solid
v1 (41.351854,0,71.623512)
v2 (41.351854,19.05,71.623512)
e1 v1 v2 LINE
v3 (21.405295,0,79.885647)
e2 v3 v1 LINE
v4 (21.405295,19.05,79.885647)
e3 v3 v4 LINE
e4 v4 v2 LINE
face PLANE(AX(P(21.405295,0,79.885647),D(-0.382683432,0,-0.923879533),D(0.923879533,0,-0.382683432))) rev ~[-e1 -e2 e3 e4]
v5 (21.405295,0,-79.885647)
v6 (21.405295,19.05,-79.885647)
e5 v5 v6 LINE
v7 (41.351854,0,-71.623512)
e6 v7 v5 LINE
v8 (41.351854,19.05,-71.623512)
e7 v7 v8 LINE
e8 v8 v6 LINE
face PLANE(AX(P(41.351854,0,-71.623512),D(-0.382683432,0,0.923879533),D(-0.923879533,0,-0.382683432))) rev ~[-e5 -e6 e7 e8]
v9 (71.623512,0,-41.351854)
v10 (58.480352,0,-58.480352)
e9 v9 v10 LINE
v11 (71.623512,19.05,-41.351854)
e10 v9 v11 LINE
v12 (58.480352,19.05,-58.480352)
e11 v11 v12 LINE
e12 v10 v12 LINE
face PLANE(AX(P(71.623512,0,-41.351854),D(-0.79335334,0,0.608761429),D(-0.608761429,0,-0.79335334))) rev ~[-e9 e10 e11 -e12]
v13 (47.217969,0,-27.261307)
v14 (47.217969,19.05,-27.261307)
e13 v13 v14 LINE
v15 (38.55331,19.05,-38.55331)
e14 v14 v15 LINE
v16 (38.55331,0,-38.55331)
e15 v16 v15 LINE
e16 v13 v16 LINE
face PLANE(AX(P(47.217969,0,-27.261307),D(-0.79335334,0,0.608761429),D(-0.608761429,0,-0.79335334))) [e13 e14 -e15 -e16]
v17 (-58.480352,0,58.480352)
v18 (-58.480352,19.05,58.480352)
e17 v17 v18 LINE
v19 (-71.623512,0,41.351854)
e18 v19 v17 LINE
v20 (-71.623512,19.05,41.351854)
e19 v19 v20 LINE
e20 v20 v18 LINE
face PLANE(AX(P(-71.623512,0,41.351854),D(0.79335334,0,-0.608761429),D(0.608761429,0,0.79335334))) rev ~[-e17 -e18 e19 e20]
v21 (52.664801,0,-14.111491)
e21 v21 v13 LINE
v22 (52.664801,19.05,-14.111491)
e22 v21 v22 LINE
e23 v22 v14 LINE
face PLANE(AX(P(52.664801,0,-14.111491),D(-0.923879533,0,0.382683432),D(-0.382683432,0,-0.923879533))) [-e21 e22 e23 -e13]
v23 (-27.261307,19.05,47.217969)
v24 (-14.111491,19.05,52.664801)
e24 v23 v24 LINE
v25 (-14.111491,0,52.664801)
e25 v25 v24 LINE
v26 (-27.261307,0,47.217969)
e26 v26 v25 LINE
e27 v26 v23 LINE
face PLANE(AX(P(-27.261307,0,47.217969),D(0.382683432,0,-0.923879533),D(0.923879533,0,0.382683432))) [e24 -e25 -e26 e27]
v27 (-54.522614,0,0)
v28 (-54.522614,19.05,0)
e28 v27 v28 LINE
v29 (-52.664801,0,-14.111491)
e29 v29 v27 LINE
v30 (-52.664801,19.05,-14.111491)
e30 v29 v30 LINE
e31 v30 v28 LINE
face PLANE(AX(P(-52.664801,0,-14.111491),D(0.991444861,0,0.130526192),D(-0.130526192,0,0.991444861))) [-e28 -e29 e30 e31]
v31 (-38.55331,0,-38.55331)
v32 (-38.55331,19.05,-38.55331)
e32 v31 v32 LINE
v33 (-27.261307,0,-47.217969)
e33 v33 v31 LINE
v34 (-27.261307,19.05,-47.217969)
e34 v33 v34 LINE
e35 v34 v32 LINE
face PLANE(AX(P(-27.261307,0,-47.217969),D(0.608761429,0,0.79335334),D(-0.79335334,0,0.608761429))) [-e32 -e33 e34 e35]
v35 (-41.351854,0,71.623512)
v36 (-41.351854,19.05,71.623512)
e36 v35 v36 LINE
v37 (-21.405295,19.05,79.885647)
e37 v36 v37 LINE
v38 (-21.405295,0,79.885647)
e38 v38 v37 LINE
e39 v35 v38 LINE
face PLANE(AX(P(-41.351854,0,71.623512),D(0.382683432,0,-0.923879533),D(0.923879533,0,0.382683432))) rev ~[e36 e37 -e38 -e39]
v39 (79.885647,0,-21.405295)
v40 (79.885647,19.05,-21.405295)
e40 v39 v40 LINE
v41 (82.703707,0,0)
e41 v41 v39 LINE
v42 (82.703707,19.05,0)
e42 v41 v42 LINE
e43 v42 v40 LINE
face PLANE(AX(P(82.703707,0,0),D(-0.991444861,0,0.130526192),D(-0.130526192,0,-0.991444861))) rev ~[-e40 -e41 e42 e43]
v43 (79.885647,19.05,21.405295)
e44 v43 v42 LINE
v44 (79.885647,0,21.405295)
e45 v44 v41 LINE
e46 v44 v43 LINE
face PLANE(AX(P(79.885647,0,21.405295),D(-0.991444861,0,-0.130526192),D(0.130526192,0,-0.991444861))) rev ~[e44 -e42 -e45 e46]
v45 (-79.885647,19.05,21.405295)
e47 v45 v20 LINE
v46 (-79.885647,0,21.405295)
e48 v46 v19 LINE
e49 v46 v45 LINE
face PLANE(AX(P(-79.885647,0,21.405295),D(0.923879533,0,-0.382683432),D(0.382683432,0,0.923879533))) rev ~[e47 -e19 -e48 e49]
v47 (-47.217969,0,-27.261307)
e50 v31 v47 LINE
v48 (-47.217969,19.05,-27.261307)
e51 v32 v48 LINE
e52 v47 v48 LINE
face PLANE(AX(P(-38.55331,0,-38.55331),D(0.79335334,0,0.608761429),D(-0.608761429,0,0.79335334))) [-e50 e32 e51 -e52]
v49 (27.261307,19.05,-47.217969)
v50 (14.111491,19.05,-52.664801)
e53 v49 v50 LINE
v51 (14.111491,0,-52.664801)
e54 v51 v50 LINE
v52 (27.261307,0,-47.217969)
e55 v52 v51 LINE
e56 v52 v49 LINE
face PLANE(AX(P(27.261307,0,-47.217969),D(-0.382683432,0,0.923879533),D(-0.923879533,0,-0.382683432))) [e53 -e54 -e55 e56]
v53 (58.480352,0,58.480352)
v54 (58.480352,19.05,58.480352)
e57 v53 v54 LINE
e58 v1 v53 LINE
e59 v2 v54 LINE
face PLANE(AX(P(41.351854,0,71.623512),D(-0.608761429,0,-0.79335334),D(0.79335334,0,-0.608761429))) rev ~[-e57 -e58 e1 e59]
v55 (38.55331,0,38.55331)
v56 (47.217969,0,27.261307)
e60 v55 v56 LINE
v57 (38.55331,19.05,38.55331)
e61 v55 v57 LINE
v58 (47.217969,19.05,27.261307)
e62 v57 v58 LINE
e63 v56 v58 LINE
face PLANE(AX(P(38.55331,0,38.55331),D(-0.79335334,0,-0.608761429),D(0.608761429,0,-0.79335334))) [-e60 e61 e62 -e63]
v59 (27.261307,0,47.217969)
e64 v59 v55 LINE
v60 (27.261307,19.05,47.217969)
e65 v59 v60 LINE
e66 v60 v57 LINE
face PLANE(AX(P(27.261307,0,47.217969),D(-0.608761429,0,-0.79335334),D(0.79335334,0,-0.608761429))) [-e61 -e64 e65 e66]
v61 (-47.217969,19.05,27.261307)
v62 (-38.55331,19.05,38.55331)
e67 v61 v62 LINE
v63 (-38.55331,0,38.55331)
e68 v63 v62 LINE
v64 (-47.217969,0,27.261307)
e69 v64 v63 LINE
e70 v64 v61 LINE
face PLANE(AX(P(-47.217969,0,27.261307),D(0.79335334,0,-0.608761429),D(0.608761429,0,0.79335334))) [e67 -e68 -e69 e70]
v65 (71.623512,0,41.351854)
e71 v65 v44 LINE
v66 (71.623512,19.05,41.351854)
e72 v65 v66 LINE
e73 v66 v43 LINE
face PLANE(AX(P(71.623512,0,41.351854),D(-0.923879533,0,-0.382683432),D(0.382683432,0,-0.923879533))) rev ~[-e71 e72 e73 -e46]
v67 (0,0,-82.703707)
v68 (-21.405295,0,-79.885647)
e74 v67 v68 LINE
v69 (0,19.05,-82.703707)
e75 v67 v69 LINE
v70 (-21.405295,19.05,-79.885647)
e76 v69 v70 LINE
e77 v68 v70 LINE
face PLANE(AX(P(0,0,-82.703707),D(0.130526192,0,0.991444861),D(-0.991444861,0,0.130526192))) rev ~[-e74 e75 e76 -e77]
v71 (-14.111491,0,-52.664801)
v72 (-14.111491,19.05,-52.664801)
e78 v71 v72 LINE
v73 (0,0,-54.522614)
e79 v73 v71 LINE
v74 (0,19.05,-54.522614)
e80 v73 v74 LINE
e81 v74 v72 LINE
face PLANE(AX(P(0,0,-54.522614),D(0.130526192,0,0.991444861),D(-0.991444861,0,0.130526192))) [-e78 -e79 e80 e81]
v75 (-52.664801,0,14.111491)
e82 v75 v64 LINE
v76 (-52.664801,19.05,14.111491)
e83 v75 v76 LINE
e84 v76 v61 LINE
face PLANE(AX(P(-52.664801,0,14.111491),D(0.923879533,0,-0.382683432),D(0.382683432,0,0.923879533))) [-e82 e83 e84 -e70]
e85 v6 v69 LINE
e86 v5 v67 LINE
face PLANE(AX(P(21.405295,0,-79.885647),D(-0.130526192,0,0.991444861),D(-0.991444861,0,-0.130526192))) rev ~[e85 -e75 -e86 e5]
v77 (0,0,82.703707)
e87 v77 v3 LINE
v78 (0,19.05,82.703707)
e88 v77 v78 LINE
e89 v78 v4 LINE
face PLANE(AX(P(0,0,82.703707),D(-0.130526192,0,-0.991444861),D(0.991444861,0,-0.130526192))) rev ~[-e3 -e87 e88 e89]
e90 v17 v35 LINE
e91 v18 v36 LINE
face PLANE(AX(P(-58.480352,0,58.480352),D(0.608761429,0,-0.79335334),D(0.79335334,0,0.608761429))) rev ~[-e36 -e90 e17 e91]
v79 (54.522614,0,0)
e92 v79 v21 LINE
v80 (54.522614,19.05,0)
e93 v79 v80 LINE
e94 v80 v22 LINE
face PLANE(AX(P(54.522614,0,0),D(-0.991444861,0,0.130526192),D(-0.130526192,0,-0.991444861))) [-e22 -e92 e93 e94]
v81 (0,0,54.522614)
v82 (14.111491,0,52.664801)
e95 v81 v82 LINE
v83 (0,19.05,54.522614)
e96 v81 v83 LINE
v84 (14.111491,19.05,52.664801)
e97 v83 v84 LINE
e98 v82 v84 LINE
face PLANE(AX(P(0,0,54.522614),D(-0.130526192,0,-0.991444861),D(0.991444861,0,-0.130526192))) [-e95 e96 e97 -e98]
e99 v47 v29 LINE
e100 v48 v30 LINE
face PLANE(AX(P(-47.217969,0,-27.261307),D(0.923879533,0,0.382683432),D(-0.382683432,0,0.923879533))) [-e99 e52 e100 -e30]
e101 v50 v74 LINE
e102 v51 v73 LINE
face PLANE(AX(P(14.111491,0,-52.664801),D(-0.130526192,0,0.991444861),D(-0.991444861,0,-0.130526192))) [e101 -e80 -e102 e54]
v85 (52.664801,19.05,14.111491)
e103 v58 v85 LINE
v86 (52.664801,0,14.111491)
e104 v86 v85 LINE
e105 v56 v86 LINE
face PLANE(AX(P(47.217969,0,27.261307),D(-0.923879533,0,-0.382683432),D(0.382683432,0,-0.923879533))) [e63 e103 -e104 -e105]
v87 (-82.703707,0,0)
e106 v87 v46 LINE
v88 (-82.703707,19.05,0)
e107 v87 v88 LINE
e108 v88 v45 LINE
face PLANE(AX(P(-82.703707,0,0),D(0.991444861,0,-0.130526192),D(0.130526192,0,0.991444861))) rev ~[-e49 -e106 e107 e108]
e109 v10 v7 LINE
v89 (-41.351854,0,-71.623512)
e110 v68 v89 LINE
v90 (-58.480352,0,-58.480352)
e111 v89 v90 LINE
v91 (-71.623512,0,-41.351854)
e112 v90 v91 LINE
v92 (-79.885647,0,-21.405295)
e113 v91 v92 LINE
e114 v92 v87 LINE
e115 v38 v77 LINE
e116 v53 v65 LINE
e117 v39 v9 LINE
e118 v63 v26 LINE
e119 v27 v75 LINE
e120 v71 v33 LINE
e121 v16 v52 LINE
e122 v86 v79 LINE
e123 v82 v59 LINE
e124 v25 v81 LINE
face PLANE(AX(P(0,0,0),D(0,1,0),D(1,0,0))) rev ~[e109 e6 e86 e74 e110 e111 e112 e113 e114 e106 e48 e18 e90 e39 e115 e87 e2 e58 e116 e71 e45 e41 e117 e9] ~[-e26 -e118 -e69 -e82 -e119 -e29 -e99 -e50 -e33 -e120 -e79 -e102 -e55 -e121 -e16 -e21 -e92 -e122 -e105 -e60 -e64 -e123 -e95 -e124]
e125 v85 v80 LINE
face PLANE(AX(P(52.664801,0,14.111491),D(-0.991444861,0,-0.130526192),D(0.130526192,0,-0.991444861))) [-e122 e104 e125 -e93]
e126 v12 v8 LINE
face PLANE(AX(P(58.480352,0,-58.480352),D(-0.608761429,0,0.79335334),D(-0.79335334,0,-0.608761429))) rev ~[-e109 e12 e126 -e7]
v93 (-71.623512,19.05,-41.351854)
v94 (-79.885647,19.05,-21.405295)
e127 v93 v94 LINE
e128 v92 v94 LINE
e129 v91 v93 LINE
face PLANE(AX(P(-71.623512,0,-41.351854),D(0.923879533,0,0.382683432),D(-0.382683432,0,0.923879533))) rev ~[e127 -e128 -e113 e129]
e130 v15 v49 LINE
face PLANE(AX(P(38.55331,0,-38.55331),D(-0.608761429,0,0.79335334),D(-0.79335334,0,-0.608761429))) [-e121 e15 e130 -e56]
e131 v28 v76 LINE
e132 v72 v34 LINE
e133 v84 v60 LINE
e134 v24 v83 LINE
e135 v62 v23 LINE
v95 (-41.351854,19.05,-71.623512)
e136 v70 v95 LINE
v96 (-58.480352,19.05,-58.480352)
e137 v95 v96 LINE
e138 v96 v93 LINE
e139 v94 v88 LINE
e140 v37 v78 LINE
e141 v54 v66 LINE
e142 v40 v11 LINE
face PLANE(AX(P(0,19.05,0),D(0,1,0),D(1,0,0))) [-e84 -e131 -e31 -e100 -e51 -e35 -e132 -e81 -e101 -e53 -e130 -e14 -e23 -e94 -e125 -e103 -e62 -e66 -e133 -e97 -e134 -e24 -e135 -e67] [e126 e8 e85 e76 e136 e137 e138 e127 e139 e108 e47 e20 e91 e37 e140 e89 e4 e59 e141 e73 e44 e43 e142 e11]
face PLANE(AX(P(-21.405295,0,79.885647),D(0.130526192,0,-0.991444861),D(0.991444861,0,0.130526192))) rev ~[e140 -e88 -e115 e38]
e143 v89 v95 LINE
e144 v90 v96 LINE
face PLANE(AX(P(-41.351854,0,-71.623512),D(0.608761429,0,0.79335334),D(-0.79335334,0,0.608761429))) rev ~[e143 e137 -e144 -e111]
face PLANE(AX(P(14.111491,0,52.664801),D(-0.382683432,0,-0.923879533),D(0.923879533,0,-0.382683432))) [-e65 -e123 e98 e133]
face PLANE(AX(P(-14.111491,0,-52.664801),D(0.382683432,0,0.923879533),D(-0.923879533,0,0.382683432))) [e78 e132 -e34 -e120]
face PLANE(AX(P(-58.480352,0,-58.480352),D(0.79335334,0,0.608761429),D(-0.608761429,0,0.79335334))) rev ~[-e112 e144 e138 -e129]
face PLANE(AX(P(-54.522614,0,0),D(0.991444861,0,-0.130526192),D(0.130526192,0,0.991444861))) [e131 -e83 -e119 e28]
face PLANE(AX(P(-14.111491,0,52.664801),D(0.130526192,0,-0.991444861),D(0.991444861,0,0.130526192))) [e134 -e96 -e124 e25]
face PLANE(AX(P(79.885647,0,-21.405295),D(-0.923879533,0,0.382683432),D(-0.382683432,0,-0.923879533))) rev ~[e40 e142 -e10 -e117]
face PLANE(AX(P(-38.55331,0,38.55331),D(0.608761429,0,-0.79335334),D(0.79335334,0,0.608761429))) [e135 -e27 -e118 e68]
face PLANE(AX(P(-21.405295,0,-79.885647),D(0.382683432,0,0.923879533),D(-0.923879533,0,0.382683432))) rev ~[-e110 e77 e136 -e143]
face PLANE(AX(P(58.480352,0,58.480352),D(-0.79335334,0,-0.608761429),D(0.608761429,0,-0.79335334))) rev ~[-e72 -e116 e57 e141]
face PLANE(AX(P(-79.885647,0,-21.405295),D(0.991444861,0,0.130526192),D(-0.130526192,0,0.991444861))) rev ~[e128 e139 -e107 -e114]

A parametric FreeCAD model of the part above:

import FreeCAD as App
import Part
import Sketcher
Q = App.Units.Quantity

doc = App.newDocument("Part")
body = doc.addObject("PartDesign::Body", "Body")

# Sketch on XZ plane
sketch1 = body.newObject("Sketcher::SketchObject", "Sketch")
sketch1.AttachmentSupport = (doc.getObject("XZ_Plane"), [""])
sketch1.MapMode = "FlatFace"
sketch1.addGeometry(Part.LineSegment(App.Vector(-83, 0, 0), App.Vector(-80, 21, 0)), False)
sketch1.addGeometry(Part.LineSegment(App.Vector(-80, 21, 0), App.Vector(-72, 41, 0)), False)
sketch1.addGeometry(Part.LineSegment(App.Vector(-72, 41, 0), App.Vector(-58, 58, 0)), False)
sketch1.addGeometry(Part.LineSegment(App.Vector(-58, 58, 0), App.Vector(-41, 72, 0)), False)
sketch1.addGeometry(Part.LineSegment(App.Vector(-41, 72, 0), App.Vector(-21, 80, 0)), False)
sketch1.addGeometry(Part.LineSegment(App.Vector(-21, 80, 0), App.Vector(0, 83, 0)), False)
sketch1.addGeometry(Part.LineSegment(App.Vector(0, 83, 0), App.Vector(21, 80, 0)), False)
sketch1.addGeometry(Part.LineSegment(App.Vector(21, 80, 0), App.Vector(41, 72, 0)), False)
sketch1.addGeometry(Part.LineSegment(App.Vector(41, 72, 0), App.Vector(58, 58, 0)), False)
sketch1.addGeometry(Part.LineSegment(App.Vector(58, 58, 0), App.Vector(72, 41, 0)), False)
sketch1.addGeometry(Part.LineSegment(App.Vector(72, 41, 0), App.Vector(80, 21, 0)), False)
sketch1.addGeometry(Part.LineSegment(App.Vector(80, 21, 0), App.Vector(83, 0, 0)), False)
sketch1.addGeometry(Part.LineSegment(App.Vector(83, 0, 0), App.Vector(80, -21, 0)), False)
sketch1.addGeometry(Part.LineSegment(App.Vector(80, -21, 0), App.Vector(72, -41, 0)), False)
sketch1.addGeometry(Part.LineSegment(App.Vector(72, -41, 0), App.Vector(58, -58, 0)), False)
sketch1.addGeometry(Part.LineSegment(App.Vector(58, -58, 0), App.Vector(41, -72, 0)), False)
sketch1.addGeometry(Part.LineSegment(App.Vector(41, -72, 0), App.Vector(21, -80, 0)), False)
sketch1.addGeometry(Part.LineSegment(App.Vector(21, -80, 0), App.Vector(0, -83, 0)), False)
sketch1.addGeometry(Part.LineSegment(App.Vector(0, -83, 0), App.Vector(-21, -80, 0)), False)
sketch1.addGeometry(Part.LineSegment(App.Vector(-21, -80, 0), App.Vector(-41, -72, 0)), False)
sketch1.addGeometry(Part.LineSegment(App.Vector(-41, -72, 0), App.Vector(-58, -58, 0)), False)
sketch1.addGeometry(Part.LineSegment(App.Vector(-58, -58, 0), App.Vector(-72, -41, 0)), False)
sketch1.addGeometry(Part.LineSegment(App.Vector(-72, -41, 0), App.Vector(-80, -21, 0)), False)
sketch1.addGeometry(Part.LineSegment(App.Vector(-80, -21, 0), App.Vector(-83, 0, 0)), False)
sketch1.addGeometry(Part.LineSegment(App.Vector(-53, 14, 0), App.Vector(-55, 0, 0)), False)
sketch1.addGeometry(Part.LineSegment(App.Vector(-55, 0, 0), App.Vector(-53, -14, 0)), False)
sketch1.addGeometry(Part.LineSegment(App.Vector(-53, -14, 0), App.Vector(-47, -27, 0)), False)
sketch1.addGeometry(Part.LineSegment(App.Vector(-47, -27, 0), App.Vector(-39, -39, 0)), False)
sketch1.addGeometry(Part.LineSegment(App.Vector(-39, -39, 0), App.Vector(-27, -47, 0)), False)
sketch1.addGeometry(Part.LineSegment(App.Vector(-27, -47, 0), App.Vector(-14, -53, 0)), False)
sketch1.addGeometry(Part.LineSegment(App.Vector(-14, -53, 0), App.Vector(0, -55, 0)), False)
sketch1.addGeometry(Part.LineSegment(App.Vector(0, -55, 0), App.Vector(14, -53, 0)), False)
sketch1.addGeometry(Part.LineSegment(App.Vector(14, -53, 0), App.Vector(27, -47, 0)), False)
sketch1.addGeometry(Part.LineSegment(App.Vector(27, -47, 0), App.Vector(39, -39, 0)), False)
sketch1.addGeometry(Part.LineSegment(App.Vector(39, -39, 0), App.Vector(47, -27, 0)), False)
sketch1.addGeometry(Part.LineSegment(App.Vector(47, -27, 0), App.Vector(53, -14, 0)), False)
sketch1.addGeometry(Part.LineSegment(App.Vector(53, -14, 0), App.Vector(55, 0, 0)), False)
sketch1.addGeometry(Part.LineSegment(App.Vector(55, 0, 0), App.Vector(53, 14, 0)), False)
sketch1.addGeometry(Part.LineSegment(App.Vector(53, 14, 0), App.Vector(47, 27, 0)), False)
sketch1.addGeometry(Part.LineSegment(App.Vector(47, 27, 0), App.Vector(39, 39, 0)), False)
sketch1.addGeometry(Part.LineSegment(App.Vector(39, 39, 0), App.Vector(27, 47, 0)), False)
sketch1.addGeometry(Part.LineSegment(App.Vector(27, 47, 0), App.Vector(14, 53, 0)), False)
sketch1.addGeometry(Part.LineSegment(App.Vector(14, 53, 0), App.Vector(0, 55, 0)), False)
sketch1.addGeometry(Part.LineSegment(App.Vector(0, 55, 0), App.Vector(-14, 53, 0)), False)
sketch1.addGeometry(Part.LineSegment(App.Vector(-14, 53, 0), App.Vector(-27, 47, 0)), False)
sketch1.addGeometry(Part.LineSegment(App.Vector(-27, 47, 0), App.Vector(-39, 39, 0)), False)
sketch1.addGeometry(Part.LineSegment(App.Vector(-39, 39, 0), App.Vector(-47, 27, 0)), False)
sketch1.addGeometry(Part.LineSegment(App.Vector(-47, 27, 0), App.Vector(-53, 14, 0)), False)
sketch1.addConstraint(Sketcher.Constraint("Coincident", 0, 2, 1, 1))
sketch1.addConstraint(Sketcher.Constraint("Coincident", 1, 2, 2, 1))
sketch1.addConstraint(Sketcher.Constraint("Coincident", 2, 2, 3, 1))
sketch1.addConstraint(Sketcher.Constraint("Coincident", 3, 2, 4, 1))
sketch1.addConstraint(Sketcher.Constraint("Coincident", 4, 2, 5, 1))
sketch1.addConstraint(Sketcher.Constraint("Coincident", 5, 2, 6, 1))
sketch1.addConstraint(Sketcher.Constraint("Coincident", 6, 2, 7, 1))
sketch1.addConstraint(Sketcher.Constraint("Coincident", 7, 2, 8, 1))
sketch1.addConstraint(Sketcher.Constraint("Coincident", 8, 2, 9, 1))
sketch1.addConstraint(Sketcher.Constraint("Coincident", 9, 2, 10, 1))
sketch1.addConstraint(Sketcher.Constraint("Coincident", 10, 2, 11, 1))
sketch1.addConstraint(Sketcher.Constraint("Coincident", 11, 2, 12, 1))
sketch1.addConstraint(Sketcher.Constraint("Coincident", 12, 2, 13, 1))
sketch1.addConstraint(Sketcher.Constraint("Coincident", 13, 2, 14, 1))
sketch1.addConstraint(Sketcher.Constraint("Coincident", 14, 2, 15, 1))
sketch1.addConstraint(Sketcher.Constraint("Coincident", 15, 2, 16, 1))
sketch1.addConstraint(Sketcher.Constraint("Coincident", 16, 2, 17, 1))
sketch1.addConstraint(Sketcher.Constraint("Coincident", 17, 2, 18, 1))
sketch1.addConstraint(Sketcher.Constraint("Coincident", 18, 2, 19, 1))
sketch1.addConstraint(Sketcher.Constraint("Coincident", 19, 2, 20, 1))
sketch1.addConstraint(Sketcher.Constraint("Coincident", 20, 2, 21, 1))
sketch1.addConstraint(Sketcher.Constraint("Coincident", 21, 2, 22, 1))
sketch1.addConstraint(Sketcher.Constraint("Coincident", 22, 2, 23, 1))
sketch1.addConstraint(Sketcher.Constraint("Coincident", 23, 2, 0, 1))
sketch1.addConstraint(Sketcher.Constraint("Coincident", 24, 2, 25, 1))
sketch1.addConstraint(Sketcher.Constraint("Coincident", 25, 2, 26, 1))
sketch1.addConstraint(Sketcher.Constraint("Coincident", 26, 2, 27, 1))
sketch1.addConstraint(Sketcher.Constraint("Coincident", 27, 2, 28, 1))
sketch1.addConstraint(Sketcher.Constraint("Coincident", 28, 2, 29, 1))
sketch1.addConstraint(Sketcher.Constraint("Coincident", 29, 2, 30, 1))
sketch1.addConstraint(Sketcher.Constraint("Coincident", 30, 2, 31, 1))
sketch1.addConstraint(Sketcher.Constraint("Coincident", 31, 2, 32, 1))
sketch1.addConstraint(Sketcher.Constraint("Coincident", 32, 2, 33, 1))
sketch1.addConstraint(Sketcher.Constraint("Coincident", 33, 2, 34, 1))
sketch1.addConstraint(Sketcher.Constraint("Coincident", 34, 2, 35, 1))
sketch1.addConstraint(Sketcher.Constraint("Coincident", 35, 2, 36, 1))
sketch1.addConstraint(Sketcher.Constraint("Coincident", 36, 2, 37, 1))
sketch1.addConstraint(Sketcher.Constraint("Coincident", 37, 2, 38, 1))
sketch1.addConstraint(Sketcher.Constraint("Coincident", 38, 2, 39, 1))
sketch1.addConstraint(Sketcher.Constraint("Coincident", 39, 2, 40, 1))
sketch1.addConstraint(Sketcher.Constraint("Coincident", 40, 2, 41, 1))
sketch1.addConstraint(Sketcher.Constraint("Coincident", 41, 2, 42, 1))
sketch1.addConstraint(Sketcher.Constraint("Coincident", 42, 2, 43, 1))
sketch1.addConstraint(Sketcher.Constraint("Coincident", 43, 2, 44, 1))
sketch1.addConstraint(Sketcher.Constraint("Coincident", 44, 2, 45, 1))
sketch1.addConstraint(Sketcher.Constraint("Coincident", 45, 2, 46, 1))
sketch1.addConstraint(Sketcher.Constraint("Coincident", 46, 2, 47, 1))
sketch1.addConstraint(Sketcher.Constraint("Coincident", 47, 2, 24, 1))
sketch1.addConstraint(Sketcher.Constraint("Symmetric", 0, 2, 12, 2, -1, 1))
sketch1.addConstraint(Sketcher.Constraint("Symmetric", 1, 2, 13, 2, -1, 1))
sketch1.addConstraint(Sketcher.Constraint("Symmetric", 2, 2, 14, 2, -1, 1))
sketch1.addConstraint(Sketcher.Constraint("Symmetric", 3, 2, 15, 2, -1, 1))
sketch1.addConstraint(Sketcher.Constraint("Symmetric", 4, 2, 16, 2, -1, 1))
sketch1.addConstraint(Sketcher.Constraint("Symmetric", 5, 2, 17, 2, -1, 1))
sketch1.addConstraint(Sketcher.Constraint("Symmetric", 6, 2, 18, 2, -1, 1))
sketch1.addConstraint(Sketcher.Constraint("Symmetric", 7, 2, 19, 2, -1, 1))
sketch1.addConstraint(Sketcher.Constraint("Symmetric", 8, 2, 20, 2, -1, 1))
sketch1.addConstraint(Sketcher.Constraint("Symmetric", 9, 2, 21, 2, -1, 1))
sketch1.addConstraint(Sketcher.Constraint("Symmetric", 10, 2, 22, 2, -1, 1))
sketch1.addConstraint(Sketcher.Constraint("Symmetric", 11, 2, 23, 2, -1, 1))
sketch1.addConstraint(Sketcher.Constraint("Symmetric", 24, 2, 36, 2, -1, 1))
sketch1.addConstraint(Sketcher.Constraint("Symmetric", 25, 2, 37, 2, -1, 1))
sketch1.addConstraint(Sketcher.Constraint("Symmetric", 26, 2, 38, 2, -1, 1))
sketch1.addConstraint(Sketcher.Constraint("Symmetric", 27, 2, 39, 2, -1, 1))
sketch1.addConstraint(Sketcher.Constraint("Symmetric", 28, 2, 40, 2, -1, 1))
sketch1.addConstraint(Sketcher.Constraint("Symmetric", 29, 2, 41, 2, -1, 1))
sketch1.addConstraint(Sketcher.Constraint("Symmetric", 30, 2, 42, 2, -1, 1))
sketch1.addConstraint(Sketcher.Constraint("Symmetric", 31, 2, 43, 2, -1, 1))
sketch1.addConstraint(Sketcher.Constraint("Symmetric", 32, 2, 44, 2, -1, 1))
sketch1.addConstraint(Sketcher.Constraint("Symmetric", 33, 2, 45, 2, -1, 1))
sketch1.addConstraint(Sketcher.Constraint("Symmetric", 34, 2, 46, 2, -1, 1))
sketch1.addConstraint(Sketcher.Constraint("Symmetric", 35, 2, 47, 2, -1, 1))
sketch1.addConstraint(Sketcher.Constraint("Symmetric", 4, 2, 6, 2, -2))
sketch1.addConstraint(Sketcher.Constraint("Symmetric", 3, 2, 7, 2, -2))
sketch1.addConstraint(Sketcher.Constraint("Symmetric", 2, 2, 8, 2, -2))
sketch1.addConstraint(Sketcher.Constraint("Symmetric", 1, 2, 9, 2, -2))
sketch1.addConstraint(Sketcher.Constraint("Symmetric", 0, 2, 10, 2, -2))
sketch1.addConstraint(Sketcher.Constraint("Symmetric", 29, 2, 31, 2, -2))
sketch1.addConstraint(Sketcher.Constraint("Symmetric", 28, 2, 32, 2, -2))
sketch1.addConstraint(Sketcher.Constraint("Symmetric", 27, 2, 33, 2, -2))
sketch1.addConstraint(Sketcher.Constraint("Symmetric", 26, 2, 34, 2, -2))
sketch1.addConstraint(Sketcher.Constraint("Symmetric", 25, 2, 35, 2, -2))
sketch1.addConstraint(Sketcher.Constraint("PointOnObject", 5, 2, -2))
sketch1.addConstraint(Sketcher.Constraint("PointOnObject", 11, 2, -1))
sketch1.addConstraint(Sketcher.Constraint("PointOnObject", 24, 2, -1))
sketch1.addConstraint(Sketcher.Constraint("PointOnObject", 30, 2, -2))
sketch1.addConstraint(Sketcher.Constraint("Perpendicular", 0, 6))
sketch1.addConstraint(Sketcher.Constraint("Perpendicular", 1, 7))
sketch1.addConstraint(Sketcher.Constraint("Perpendicular", 2, 8))
sketch1.addConstraint(Sketcher.Constraint("Perpendicular", 18, 24))
sketch1.addConstraint(Sketcher.Constraint("Parallel", 22, 26))
sketch1.addConstraint(Sketcher.Constraint("Parallel", 21, 27))
sketch1.addConstraint(Sketcher.Constraint("Parallel", 20, 28))
sketch1.addConstraint(Sketcher.Constraint("Parallel", 19, 29))
sketch1.addConstraint(Sketcher.Constraint("Perpendicular", 24, 30))
sketch1.addConstraint(Sketcher.Constraint("Equal", 0, 1))
sketch1.addConstraint(Sketcher.Constraint("Equal", 1, 2))
sketch1.addConstraint(Sketcher.Constraint("Equal", 2, 3))
sketch1.addConstraint(Sketcher.Constraint("Equal", 3, 4))
sketch1.addConstraint(Sketcher.Constraint("Equal", 4, 5))
sketch1.addConstraint(Sketcher.Constraint("Equal", 25, 26))
sketch1.addConstraint(Sketcher.Constraint("Equal", 26, 27))
sketch1.addConstraint(Sketcher.Constraint("Equal", 27, 28))
sketch1.addConstraint(Sketcher.Constraint("Equal", 28, 29))
sketch1.addConstraint(Sketcher.Constraint("Equal", 29, 30))
sketch1.addConstraint(Sketcher.Constraint("Angle", 0, Q("82.5 deg")))
sketch1.addConstraint(Sketcher.Constraint("Angle", 1, Q("67.5 deg")))
sketch1.addConstraint(Sketcher.Constraint("Angle", 2, Q("52.5 deg")))
sketch1.addConstraint(Sketcher.Constraint("Distance", 0, Q("0.85 in")))
sketch1.addConstraint(Sketcher.Constraint("DistanceX", 25, 2, -1, 1, Q("52.664801 mm")))
pad1 = body.newObject("PartDesign::Pad", "Pad")
pad1.Profile = sketch1
pad1.Length = Q("0.75 in")
pad1.Reversed = True

doc.recompute()
